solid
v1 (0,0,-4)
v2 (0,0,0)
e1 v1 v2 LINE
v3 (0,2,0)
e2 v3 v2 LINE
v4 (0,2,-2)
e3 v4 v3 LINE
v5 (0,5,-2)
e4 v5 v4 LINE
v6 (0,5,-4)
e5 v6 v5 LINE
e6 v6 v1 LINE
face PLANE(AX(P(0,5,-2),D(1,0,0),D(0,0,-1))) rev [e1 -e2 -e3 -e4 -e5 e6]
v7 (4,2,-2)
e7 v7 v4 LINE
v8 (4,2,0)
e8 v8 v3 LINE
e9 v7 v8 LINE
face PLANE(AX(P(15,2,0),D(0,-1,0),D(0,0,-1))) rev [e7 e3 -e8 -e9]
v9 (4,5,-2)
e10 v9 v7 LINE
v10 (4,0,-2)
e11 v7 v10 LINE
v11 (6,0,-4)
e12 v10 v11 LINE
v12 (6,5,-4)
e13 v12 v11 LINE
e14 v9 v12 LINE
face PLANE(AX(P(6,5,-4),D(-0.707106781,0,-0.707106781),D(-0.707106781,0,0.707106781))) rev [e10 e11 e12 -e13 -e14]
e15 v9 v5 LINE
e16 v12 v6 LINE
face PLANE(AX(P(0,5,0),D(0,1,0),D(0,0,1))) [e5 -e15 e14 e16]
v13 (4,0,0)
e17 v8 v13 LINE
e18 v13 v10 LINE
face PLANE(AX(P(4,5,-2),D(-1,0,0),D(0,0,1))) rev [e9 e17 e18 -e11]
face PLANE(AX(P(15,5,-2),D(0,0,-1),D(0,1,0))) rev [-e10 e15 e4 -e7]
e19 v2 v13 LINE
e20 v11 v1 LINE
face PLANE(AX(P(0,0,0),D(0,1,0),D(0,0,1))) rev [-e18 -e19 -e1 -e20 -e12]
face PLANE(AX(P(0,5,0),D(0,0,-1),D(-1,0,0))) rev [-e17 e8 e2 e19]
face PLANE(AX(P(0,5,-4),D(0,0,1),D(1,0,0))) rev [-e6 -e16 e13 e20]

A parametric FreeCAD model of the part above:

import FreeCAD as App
import Part
import Sketcher

V = App.Vector
Q = App.Units.Quantity


def add_polygon(sketch, points):
    """Adds a closed chain of lines whose ends are joined by coincident constraints."""
    first, n = sketch.GeometryCount, len(points)
    for a, b in zip(points, points[1:] + points[:1]):
        sketch.addGeometry(Part.LineSegment(App.Vector(*a, 0), App.Vector(*b, 0)), False)
    for i in range(n):
        sketch.addConstraint(Sketcher.Constraint("Coincident", first + i, 2, first + (i + 1) % n, 1))

doc = App.newDocument("Part")
body = doc.addObject("PartDesign::Body", "Body")

sketch1 = body.newObject("Sketcher::SketchObject", "Sketch")
sketch1.AttachmentSupport = (doc.getObject("XZ_Plane"), [""])
sketch1.MapMode = "FlatFace"
add_polygon(sketch1, [(4, 0), (4, -2), (6, -4), (0, -4), (0, 0)])
sketch1.addConstraint([
    Sketcher.Constraint("Vertical", 0),
    Sketcher.Constraint("Horizontal", 2),
    Sketcher.Constraint("Vertical", 3),
    Sketcher.Constraint("Horizontal", 4),
    Sketcher.Constraint("Coincident", 3, 2, -1, 1),
    Sketcher.Constraint("Equal", 4, 3),
    Sketcher.Constraint("DistanceX", 2, 2, 2, 1, Q("6 mm")),
    Sketcher.Constraint("DistanceX", 4, 1, 4, 2, Q("4 mm")),
    Sketcher.Constraint("DistanceY", 0, 2, 0, 1, Q("2 mm")),
])
pad1 = body.newObject("PartDesign::Pad", "Pad")
pad1.Profile = sketch1
pad1.Length = 5
pad1.Reversed = True

sketch2 = body.newObject("Sketcher::SketchObject", "Sketch001")
sketch2.AttachmentSupport = (doc.getObject("YZ_Plane"), [""])
sketch2.MapMode = "FlatFace"
add_polygon(sketch2, [(5, -2), (2, -2), (2, 0), (5, 0)])
sketch2.addConstraint([
    Sketcher.Constraint("Horizontal", 0),
    Sketcher.Constraint("Vertical", 1),
    Sketcher.Constraint("Horizontal", 2),
    Sketcher.Constraint("Vertical", 3),
    Sketcher.Constraint("PointOnObject", 1, 2, -1),
    Sketcher.Constraint("DistanceX", 0, 2, 0, 1, Q("3 mm")),
    Sketcher.Constraint("DistanceY", 1, 1, 1, 2, Q("2 mm")),
    Sketcher.Constraint("DistanceX", -1, 1, 0, 2, Q("2 mm")),
])
pocket1 = body.newObject("PartDesign::Pocket", "Pocket")
pocket1.Profile = sketch2
pocket1.Length = 15
pocket1.Reversed = True

doc.recompute()
